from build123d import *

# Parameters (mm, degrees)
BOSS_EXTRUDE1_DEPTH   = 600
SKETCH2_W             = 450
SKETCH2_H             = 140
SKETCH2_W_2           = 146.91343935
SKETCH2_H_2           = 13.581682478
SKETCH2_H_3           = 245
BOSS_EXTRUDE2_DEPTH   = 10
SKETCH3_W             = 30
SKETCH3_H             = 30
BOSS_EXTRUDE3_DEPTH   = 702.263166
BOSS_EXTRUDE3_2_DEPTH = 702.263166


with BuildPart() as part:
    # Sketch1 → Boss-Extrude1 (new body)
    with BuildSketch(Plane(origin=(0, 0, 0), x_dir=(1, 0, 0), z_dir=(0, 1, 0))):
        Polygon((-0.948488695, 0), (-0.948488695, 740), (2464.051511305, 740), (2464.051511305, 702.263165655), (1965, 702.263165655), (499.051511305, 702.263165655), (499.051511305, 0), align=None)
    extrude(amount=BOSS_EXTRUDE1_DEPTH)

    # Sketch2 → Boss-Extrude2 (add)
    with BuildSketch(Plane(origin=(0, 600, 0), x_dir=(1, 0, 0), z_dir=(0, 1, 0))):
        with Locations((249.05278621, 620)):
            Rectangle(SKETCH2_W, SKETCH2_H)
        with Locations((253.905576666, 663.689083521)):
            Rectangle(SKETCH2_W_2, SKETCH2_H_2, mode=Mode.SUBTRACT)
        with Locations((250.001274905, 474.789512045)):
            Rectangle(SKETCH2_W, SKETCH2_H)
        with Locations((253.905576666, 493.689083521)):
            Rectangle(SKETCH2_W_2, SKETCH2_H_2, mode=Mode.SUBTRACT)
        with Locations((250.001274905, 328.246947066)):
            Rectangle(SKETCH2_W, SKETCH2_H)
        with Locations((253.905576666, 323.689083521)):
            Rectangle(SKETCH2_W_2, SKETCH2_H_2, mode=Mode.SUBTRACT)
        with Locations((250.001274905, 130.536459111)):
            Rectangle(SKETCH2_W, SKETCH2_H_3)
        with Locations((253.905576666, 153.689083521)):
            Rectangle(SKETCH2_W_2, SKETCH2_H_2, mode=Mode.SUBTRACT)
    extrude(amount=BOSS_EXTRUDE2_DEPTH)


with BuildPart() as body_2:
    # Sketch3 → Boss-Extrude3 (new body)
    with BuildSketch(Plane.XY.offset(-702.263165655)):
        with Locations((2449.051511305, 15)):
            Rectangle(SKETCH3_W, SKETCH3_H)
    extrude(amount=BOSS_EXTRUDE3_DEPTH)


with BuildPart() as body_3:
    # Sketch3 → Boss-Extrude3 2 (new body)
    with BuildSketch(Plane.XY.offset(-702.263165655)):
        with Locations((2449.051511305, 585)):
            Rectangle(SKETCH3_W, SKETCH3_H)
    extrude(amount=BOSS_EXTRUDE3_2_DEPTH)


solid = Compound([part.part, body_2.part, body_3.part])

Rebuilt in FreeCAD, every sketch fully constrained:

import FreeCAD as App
import Part
import Sketcher


def add_polygon(sketch, points):
    """Adds a closed chain of lines whose ends are joined by coincident constraints."""
    first, n = sketch.GeometryCount, len(points)
    for a, b in zip(points, points[1:] + points[:1]):
        sketch.addGeometry(Part.LineSegment(App.Vector(*a, 0), App.Vector(*b, 0)), False)
    for i in range(n):
        sketch.addConstraint(Sketcher.Constraint("Coincident", first + i, 2, first + (i + 1) % n, 1))

doc = App.newDocument("Part")
body = doc.addObject("PartDesign::Body", "Body")

sketch1 = body.newObject("Sketcher::SketchObject", "Sketch")
sketch1.AttachmentSupport = (doc.getObject("XZ_Plane"), [""])
sketch1.MapMode = "FlatFace"
add_polygon(sketch1, [(-1, -740), (-1, 0), (499, 0), (499, -702), (2464, -702), (2464, -740)])
sketch1.addConstraint(Sketcher.Constraint("Vertical", 0))
sketch1.addConstraint(Sketcher.Constraint("Horizontal", 1))
sketch1.addConstraint(Sketcher.Constraint("Vertical", 2))
sketch1.addConstraint(Sketcher.Constraint("Horizontal", 3))
sketch1.addConstraint(Sketcher.Constraint("Vertical", 4))
sketch1.addConstraint(Sketcher.Constraint("Horizontal", 5))
sketch1.addConstraint(Sketcher.Constraint("PointOnObject", 0, 2, -1))
sketch1.addConstraint(Sketcher.Constraint("DistanceX", 1, 1, 1, 2, 500.0))
sketch1.addConstraint(Sketcher.Constraint("DistanceX", 3, 1, 3, 2, 1965.0))
sketch1.addConstraint(Sketcher.Constraint("DistanceY", 0, 1, 0, 2, 740.0))
sketch1.addConstraint(Sketcher.Constraint("DistanceY", 2, 2, 2, 1, 702.263166))
sketch1.addConstraint(Sketcher.Constraint("DistanceX", 0, 2, -1, 1, 0.948489))
pad1 = body.newObject("PartDesign::Pad", "Pad")
pad1.Profile = sketch1
pad1.Length = 600
pad1.Reversed = True

sketch2 = body.newObject("Sketcher::SketchObject", "Sketch001")
sketch2.AttachmentSupport = (doc.getObject("XZ_Plane"), [""])
sketch2.MapMode = "FlatFace"
sketch2.AttachmentOffset = App.Placement(App.Vector(0, 0, -600), App.Rotation())
add_polygon(sketch2, [(24, -690), (24, -550), (474, -550), (474, -690)])
add_polygon(sketch2, [(327, -657), (180, -657), (180, -670), (327, -670)])
add_polygon(sketch2, [(25, -545), (25, -405), (475, -405), (475, -545)])
add_polygon(sketch2, [(327, -487), (180, -487), (180, -500), (327, -500)])
add_polygon(sketch2, [(25, -398), (25, -258), (475, -258), (475, -398)])
add_polygon(sketch2, [(327, -317), (180, -317), (180, -330), (327, -330)])
add_polygon(sketch2, [(25, -253), (25, -8), (475, -8), (475, -253)])
add_polygon(sketch2, [(327, -147), (180, -147), (180, -160), (327, -160)])
sketch2.addConstraint(Sketcher.Constraint("Vertical", 0))
sketch2.addConstraint(Sketcher.Constraint("Horizontal", 1))
sketch2.addConstraint(Sketcher.Constraint("Vertical", 2))
sketch2.addConstraint(Sketcher.Constraint("Horizontal", 3))
sketch2.addConstraint(Sketcher.Constraint("Horizontal", 4))
sketch2.addConstraint(Sketcher.Constraint("Vertical", 5))
sketch2.addConstraint(Sketcher.Constraint("Horizontal", 6))
sketch2.addConstraint(Sketcher.Constraint("Vertical", 7))
sketch2.addConstraint(Sketcher.Constraint("Vertical", 8))
sketch2.addConstraint(Sketcher.Constraint("Horizontal", 9))
sketch2.addConstraint(Sketcher.Constraint("Vertical", 10))
sketch2.addConstraint(Sketcher.Constraint("Horizontal", 11))
sketch2.addConstraint(Sketcher.Constraint("Horizontal", 12))
sketch2.addConstraint(Sketcher.Constraint("Vertical", 13))
sketch2.addConstraint(Sketcher.Constraint("Horizontal", 14))
sketch2.addConstraint(Sketcher.Constraint("Vertical", 15))
sketch2.addConstraint(Sketcher.Constraint("Vertical", 16))
sketch2.addConstraint(Sketcher.Constraint("Horizontal", 17))
sketch2.addConstraint(Sketcher.Constraint("Vertical", 18))
sketch2.addConstraint(Sketcher.Constraint("Horizontal", 19))
sketch2.addConstraint(Sketcher.Constraint("Horizontal", 20))
sketch2.addConstraint(Sketcher.Constraint("Vertical", 21))
sketch2.addConstraint(Sketcher.Constraint("Horizontal", 22))
sketch2.addConstraint(Sketcher.Constraint("Vertical", 23))
sketch2.addConstraint(Sketcher.Constraint("Vertical", 24))
sketch2.addConstraint(Sketcher.Constraint("Horizontal", 25))
sketch2.addConstraint(Sketcher.Constraint("Vertical", 26))
sketch2.addConstraint(Sketcher.Constraint("Horizontal", 27))
sketch2.addConstraint(Sketcher.Constraint("Horizontal", 28))
sketch2.addConstraint(Sketcher.Constraint("Vertical", 29))
sketch2.addConstraint(Sketcher.Constraint("Horizontal", 30))
sketch2.addConstraint(Sketcher.Constraint("Vertical", 31))
sketch2.addConstraint(Sketcher.Constraint("Vertical", 5, 2, 12, 2))
sketch2.addConstraint(Sketcher.Constraint("Vertical", 7, 2, 14, 2))
sketch2.addConstraint(Sketcher.Constraint("Vertical", 11, 2, 16, 2))
sketch2.addConstraint(Sketcher.Constraint("Vertical", 10, 2, 17, 2))
sketch2.addConstraint(Sketcher.Constraint("Vertical", 13, 2, 20, 2))
sketch2.addConstraint(Sketcher.Constraint("Vertical", 15, 2, 22, 2))
sketch2.addConstraint(Sketcher.Constraint("Vertical", 19, 2, 24, 2))
sketch2.addConstraint(Sketcher.Constraint("Vertical", 18, 2, 25, 2))
sketch2.addConstraint(Sketcher.Constraint("Vertical", 21, 2, 28, 2))
sketch2.addConstraint(Sketcher.Constraint("Vertical", 23, 2, 30, 2))
sketch2.addConstraint(Sketcher.Constraint("Equal", 3, 9))
sketch2.addConstraint(Sketcher.Constraint("Equal", 2, 8))
sketch2.addConstraint(Sketcher.Constraint("Equal", 7, 13))
sketch2.addConstraint(Sketcher.Constraint("Equal", 10, 16))
sketch2.addConstraint(Sketcher.Constraint("Equal", 15, 21))
sketch2.addConstraint(Sketcher.Constraint("Equal", 23, 29))
sketch2.addConstraint(Sketcher.Constraint("DistanceX", 1, 1, 1, 2, 450.0))
sketch2.addConstraint(Sketcher.Constraint("DistanceY", 0, 1, 0, 2, 140.0))
sketch2.addConstraint(Sketcher.Constraint("DistanceY", 24, 1, 24, 2, 245.0))
sketch2.addConstraint(Sketcher.Constraint("DistanceY", 0, 2, -1, 1, 550.0))
sketch2.addConstraint(Sketcher.Constraint("DistanceY", 4, 2, 12, 2, 170.0))
sketch2.addConstraint(Sketcher.Constraint("DistanceY", 12, 2, 20, 2, 170.0))
sketch2.addConstraint(Sketcher.Constraint("DistanceY", 20, 2, 28, 2, 170.0))
sketch2.addConstraint(Sketcher.Constraint("DistanceX", 4, 2, 4, 1, 146.913439))
sketch2.addConstraint(Sketcher.Constraint("DistanceY", 5, 2, 5, 1, 13.581682))
sketch2.addConstraint(Sketcher.Constraint("DistanceY", 24, 2, -1, 1, 8.036459))
sketch2.addConstraint(Sketcher.Constraint("DistanceX", 3, 2, 4, 2, 156.396071))
sketch2.addConstraint(Sketcher.Constraint("DistanceX", 0, 2, 8, 2, 0.948489))
sketch2.addConstraint(Sketcher.Constraint("DistanceY", 4, 2, 8, 2, 252.10873))
sketch2.addConstraint(Sketcher.Constraint("DistanceX", -1, 1, 0, 2, 24.052786))
sketch2.addConstraint(Sketcher.Constraint("DistanceY", 4, 2, -1, 1, 656.898242))
sketch2.addConstraint(Sketcher.Constraint("DistanceY", 16, 2, -1, 1, 258.246947))
pad2 = body.newObject("PartDesign::Pad", "Pad001")
pad2.Profile = sketch2
pad2.Length = 10
pad2.Reversed = True
body2 = doc.addObject("PartDesign::Body", "Body001")

sketch3 = body2.newObject("Sketcher::SketchObject", "Sketch002")
sketch3.AttachmentSupport = (doc.getObject("XY_Plane001"), [""])
sketch3.MapMode = "FlatFace"
sketch3.AttachmentOffset = App.Placement(App.Vector(0, 0, -702.263166), App.Rotation())
add_polygon(sketch3, [(2434, 30), (2434, 0), (2464, 0), (2464, 30)])
sketch3.addConstraint(Sketcher.Constraint("Vertical", 0))
sketch3.addConstraint(Sketcher.Constraint("Horizontal", 1))
sketch3.addConstraint(Sketcher.Constraint("Vertical", 2))
sketch3.addConstraint(Sketcher.Constraint("Horizontal", 3))
sketch3.addConstraint(Sketcher.Constraint("PointOnObject", 0, 2, -1))
sketch3.addConstraint(Sketcher.Constraint("Equal", 3, 0))
sketch3.addConstraint(Sketcher.Constraint("DistanceX", 1, 1, 1, 2, 30.0))
sketch3.addConstraint(Sketcher.Constraint("DistanceX", -1, 1, 0, 2, 2434.051511))
pad3 = body2.newObject("PartDesign::Pad", "Pad002")
pad3.Profile = sketch3
pad3.Length = 702.263166
body3 = doc.addObject("PartDesign::Body", "Body002")

sketch4 = body3.newObject("Sketcher::SketchObject", "Sketch003")
sketch4.AttachmentSupport = (doc.getObject("XY_Plane002"), [""])
sketch4.MapMode = "FlatFace"
sketch4.AttachmentOffset = App.Placement(App.Vector(0, 0, -702.263166), App.Rotation())
add_polygon(sketch4, [(2434, 600), (2434, 570), (2464, 570), (2464, 600)])
sketch4.addConstraint(Sketcher.Constraint("Vertical", 0))
sketch4.addConstraint(Sketcher.Constraint("Horizontal", 1))
sketch4.addConstraint(Sketcher.Constraint("Vertical", 2))
sketch4.addConstraint(Sketcher.Constraint("Horizontal", 3))
sketch4.addConstraint(Sketcher.Constraint("Equal", 3, 0))
sketch4.addConstraint(Sketcher.Constraint("DistanceX", 1, 1, 1, 2, 30.0))
sketch4.addConstraint(Sketcher.Constraint("DistanceY", -1, 1, 0, 2, 570.0))
sketch4.addConstraint(Sketcher.Constraint("DistanceX", -1, 1, 0, 2, 2434.051511))
pad4 = body3.newObject("PartDesign::Pad", "Pad003")
pad4.Profile = sketch4
pad4.Length = 702.263166

doc.recompute()
